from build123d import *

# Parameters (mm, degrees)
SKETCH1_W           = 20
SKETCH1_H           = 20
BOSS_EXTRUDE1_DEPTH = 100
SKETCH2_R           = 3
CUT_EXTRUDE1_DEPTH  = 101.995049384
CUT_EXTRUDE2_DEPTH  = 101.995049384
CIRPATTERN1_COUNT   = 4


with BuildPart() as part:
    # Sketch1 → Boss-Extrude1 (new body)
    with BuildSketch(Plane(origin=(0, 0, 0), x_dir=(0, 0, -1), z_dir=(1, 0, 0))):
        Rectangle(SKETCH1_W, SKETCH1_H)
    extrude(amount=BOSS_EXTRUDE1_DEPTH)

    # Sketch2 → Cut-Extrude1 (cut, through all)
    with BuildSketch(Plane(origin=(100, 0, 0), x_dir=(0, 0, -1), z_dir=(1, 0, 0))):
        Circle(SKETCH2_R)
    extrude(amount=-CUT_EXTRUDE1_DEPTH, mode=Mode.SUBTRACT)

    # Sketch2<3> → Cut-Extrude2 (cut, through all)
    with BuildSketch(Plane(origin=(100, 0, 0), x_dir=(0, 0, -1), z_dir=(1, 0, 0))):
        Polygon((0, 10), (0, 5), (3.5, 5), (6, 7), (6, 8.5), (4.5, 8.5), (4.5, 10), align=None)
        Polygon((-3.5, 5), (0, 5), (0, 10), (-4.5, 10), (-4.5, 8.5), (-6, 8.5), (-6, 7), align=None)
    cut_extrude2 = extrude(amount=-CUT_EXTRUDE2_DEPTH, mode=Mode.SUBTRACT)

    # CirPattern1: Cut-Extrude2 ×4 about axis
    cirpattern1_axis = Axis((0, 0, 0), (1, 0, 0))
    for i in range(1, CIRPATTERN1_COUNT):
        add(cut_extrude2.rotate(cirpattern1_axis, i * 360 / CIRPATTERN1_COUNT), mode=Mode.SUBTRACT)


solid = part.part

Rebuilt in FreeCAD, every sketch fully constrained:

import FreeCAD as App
import Part
import Sketcher
from FreeCAD import Vector
Q = App.Units.Quantity


def add_polygon(sketch, points):
    """Adds a closed chain of lines whose ends are joined by coincident constraints."""
    first, n = sketch.GeometryCount, len(points)
    for a, b in zip(points, points[1:] + points[:1]):
        sketch.addGeometry(Part.LineSegment(App.Vector(*a, 0), App.Vector(*b, 0)), False)
    for i in range(n):
        sketch.addConstraint(Sketcher.Constraint("Coincident", first + i, 2, first + (i + 1) % n, 1))

doc = App.newDocument("Part")
body = doc.addObject("PartDesign::Body", "Body")

# Sketch on YZ plane
sketch1 = body.newObject("Sketcher::SketchObject", "Sketch")
sketch1.AttachmentSupport = (doc.getObject("YZ_Plane"), [""])
sketch1.MapMode = "FlatFace"
add_polygon(sketch1, [(10, 10), (-10, 10), (-10, -10), (10, -10)])  # lines 0-3
sketch1.addConstraint(Sketcher.Constraint("Horizontal", 0))
sketch1.addConstraint(Sketcher.Constraint("Vertical", 1))
sketch1.addConstraint(Sketcher.Constraint("Horizontal", 2))
sketch1.addConstraint(Sketcher.Constraint("Vertical", 3))
sketch1.addConstraint(Sketcher.Constraint("Symmetric", 0, 2, 2, 2, -1, 1))
sketch1.addConstraint(Sketcher.Constraint("Equal", 2, 1))
sketch1.addConstraint(Sketcher.Constraint("DistanceX", 0, 2, 0, 1, Q("20 mm")))
pad1 = body.newObject("PartDesign::Pad", "Pad")
pad1.Profile = sketch1
pad1.Length = 100

# Sketch on YZ plane
sketch2 = body.newObject("Sketcher::SketchObject", "Sketch001")
sketch2.AttachmentSupport = (doc.getObject("YZ_Plane"), [""])
sketch2.MapMode = "FlatFace"
sketch2.AttachmentOffset = App.Placement(Vector(0, 0, 100), App.Rotation())
sketch2.addGeometry(Part.Circle(Vector(0, 0, 0), Vector(0, 0, 1), 3), False)
sketch2.addConstraint(Sketcher.Constraint("Coincident", 0, 3, -1, 1))
sketch2.addConstraint(Sketcher.Constraint("Diameter", 0, Q("6 mm")))
pocket1 = body.newObject("PartDesign::Pocket", "Pocket")
pocket1.Profile = sketch2
pocket1.Type = "ThroughAll"

# Sketch on YZ plane
sketch3 = body.newObject("Sketcher::SketchObject", "Sketch002")
sketch3.AttachmentSupport = (doc.getObject("YZ_Plane"), [""])
sketch3.MapMode = "FlatFace"
sketch3.AttachmentOffset = App.Placement(Vector(0, 0, 100), App.Rotation())
add_polygon(sketch3, [(5, -3.5), (7, -6), (8.5, -6), (8.5, -4.5), (10, -4.5), (10, 4.5), (8.5, 4.5), (8.5, 6), (7, 6), (5, 3.5)])  # lines 0-9
sketch3.addConstraint(Sketcher.Constraint("Horizontal", 1))
sketch3.addConstraint(Sketcher.Constraint("Vertical", 2))
sketch3.addConstraint(Sketcher.Constraint("Horizontal", 3))
sketch3.addConstraint(Sketcher.Constraint("Vertical", 4))
sketch3.addConstraint(Sketcher.Constraint("Horizontal", 5))
sketch3.addConstraint(Sketcher.Constraint("Vertical", 6))
sketch3.addConstraint(Sketcher.Constraint("Horizontal", 7))
sketch3.addConstraint(Sketcher.Constraint("Vertical", 9))
sketch3.addConstraint(Sketcher.Constraint("Symmetric", 2, 2, 5, 2, -1))
sketch3.addConstraint(Sketcher.Constraint("Symmetric", 0, 2, 7, 2, -1))
sketch3.addConstraint(Sketcher.Constraint("Equal", 1, 3))
sketch3.addConstraint(Sketcher.Constraint("Equal", 7, 2))
sketch3.addConstraint(Sketcher.Constraint("Equal", 0, 8))
sketch3.addConstraint(Sketcher.Constraint("DistanceY", 4, 1, 4, 2, Q("9 mm")))
sketch3.addConstraint(Sketcher.Constraint("DistanceY", 9, 2, 9, 1, Q("7 mm")))
sketch3.addConstraint(Sketcher.Constraint("DistanceX", 1, 1, 1, 2, Q("1.5 mm")))
sketch3.addConstraint(Sketcher.Constraint("DistanceX", -1, 1, 0, 2, Q("7 mm")))
sketch3.addConstraint(Sketcher.Constraint("DistanceX", -1, 1, 8, 2, Q("5 mm")))
pocket2 = body.newObject("PartDesign::Pocket", "Pocket001")
pocket2.Profile = sketch3
pocket2.Type = "ThroughAll"
doc.recompute()

polarpattern = body.newObject("PartDesign::PolarPattern", "PolarPattern")
polarpattern.Originals = [pocket2]
polarpattern.Axis = (doc.getObject("X_Axis"), [""])
polarpattern.Angle = 360
polarpattern.Occurrences = 4
body.Tip = polarpattern

doc.recompute()
